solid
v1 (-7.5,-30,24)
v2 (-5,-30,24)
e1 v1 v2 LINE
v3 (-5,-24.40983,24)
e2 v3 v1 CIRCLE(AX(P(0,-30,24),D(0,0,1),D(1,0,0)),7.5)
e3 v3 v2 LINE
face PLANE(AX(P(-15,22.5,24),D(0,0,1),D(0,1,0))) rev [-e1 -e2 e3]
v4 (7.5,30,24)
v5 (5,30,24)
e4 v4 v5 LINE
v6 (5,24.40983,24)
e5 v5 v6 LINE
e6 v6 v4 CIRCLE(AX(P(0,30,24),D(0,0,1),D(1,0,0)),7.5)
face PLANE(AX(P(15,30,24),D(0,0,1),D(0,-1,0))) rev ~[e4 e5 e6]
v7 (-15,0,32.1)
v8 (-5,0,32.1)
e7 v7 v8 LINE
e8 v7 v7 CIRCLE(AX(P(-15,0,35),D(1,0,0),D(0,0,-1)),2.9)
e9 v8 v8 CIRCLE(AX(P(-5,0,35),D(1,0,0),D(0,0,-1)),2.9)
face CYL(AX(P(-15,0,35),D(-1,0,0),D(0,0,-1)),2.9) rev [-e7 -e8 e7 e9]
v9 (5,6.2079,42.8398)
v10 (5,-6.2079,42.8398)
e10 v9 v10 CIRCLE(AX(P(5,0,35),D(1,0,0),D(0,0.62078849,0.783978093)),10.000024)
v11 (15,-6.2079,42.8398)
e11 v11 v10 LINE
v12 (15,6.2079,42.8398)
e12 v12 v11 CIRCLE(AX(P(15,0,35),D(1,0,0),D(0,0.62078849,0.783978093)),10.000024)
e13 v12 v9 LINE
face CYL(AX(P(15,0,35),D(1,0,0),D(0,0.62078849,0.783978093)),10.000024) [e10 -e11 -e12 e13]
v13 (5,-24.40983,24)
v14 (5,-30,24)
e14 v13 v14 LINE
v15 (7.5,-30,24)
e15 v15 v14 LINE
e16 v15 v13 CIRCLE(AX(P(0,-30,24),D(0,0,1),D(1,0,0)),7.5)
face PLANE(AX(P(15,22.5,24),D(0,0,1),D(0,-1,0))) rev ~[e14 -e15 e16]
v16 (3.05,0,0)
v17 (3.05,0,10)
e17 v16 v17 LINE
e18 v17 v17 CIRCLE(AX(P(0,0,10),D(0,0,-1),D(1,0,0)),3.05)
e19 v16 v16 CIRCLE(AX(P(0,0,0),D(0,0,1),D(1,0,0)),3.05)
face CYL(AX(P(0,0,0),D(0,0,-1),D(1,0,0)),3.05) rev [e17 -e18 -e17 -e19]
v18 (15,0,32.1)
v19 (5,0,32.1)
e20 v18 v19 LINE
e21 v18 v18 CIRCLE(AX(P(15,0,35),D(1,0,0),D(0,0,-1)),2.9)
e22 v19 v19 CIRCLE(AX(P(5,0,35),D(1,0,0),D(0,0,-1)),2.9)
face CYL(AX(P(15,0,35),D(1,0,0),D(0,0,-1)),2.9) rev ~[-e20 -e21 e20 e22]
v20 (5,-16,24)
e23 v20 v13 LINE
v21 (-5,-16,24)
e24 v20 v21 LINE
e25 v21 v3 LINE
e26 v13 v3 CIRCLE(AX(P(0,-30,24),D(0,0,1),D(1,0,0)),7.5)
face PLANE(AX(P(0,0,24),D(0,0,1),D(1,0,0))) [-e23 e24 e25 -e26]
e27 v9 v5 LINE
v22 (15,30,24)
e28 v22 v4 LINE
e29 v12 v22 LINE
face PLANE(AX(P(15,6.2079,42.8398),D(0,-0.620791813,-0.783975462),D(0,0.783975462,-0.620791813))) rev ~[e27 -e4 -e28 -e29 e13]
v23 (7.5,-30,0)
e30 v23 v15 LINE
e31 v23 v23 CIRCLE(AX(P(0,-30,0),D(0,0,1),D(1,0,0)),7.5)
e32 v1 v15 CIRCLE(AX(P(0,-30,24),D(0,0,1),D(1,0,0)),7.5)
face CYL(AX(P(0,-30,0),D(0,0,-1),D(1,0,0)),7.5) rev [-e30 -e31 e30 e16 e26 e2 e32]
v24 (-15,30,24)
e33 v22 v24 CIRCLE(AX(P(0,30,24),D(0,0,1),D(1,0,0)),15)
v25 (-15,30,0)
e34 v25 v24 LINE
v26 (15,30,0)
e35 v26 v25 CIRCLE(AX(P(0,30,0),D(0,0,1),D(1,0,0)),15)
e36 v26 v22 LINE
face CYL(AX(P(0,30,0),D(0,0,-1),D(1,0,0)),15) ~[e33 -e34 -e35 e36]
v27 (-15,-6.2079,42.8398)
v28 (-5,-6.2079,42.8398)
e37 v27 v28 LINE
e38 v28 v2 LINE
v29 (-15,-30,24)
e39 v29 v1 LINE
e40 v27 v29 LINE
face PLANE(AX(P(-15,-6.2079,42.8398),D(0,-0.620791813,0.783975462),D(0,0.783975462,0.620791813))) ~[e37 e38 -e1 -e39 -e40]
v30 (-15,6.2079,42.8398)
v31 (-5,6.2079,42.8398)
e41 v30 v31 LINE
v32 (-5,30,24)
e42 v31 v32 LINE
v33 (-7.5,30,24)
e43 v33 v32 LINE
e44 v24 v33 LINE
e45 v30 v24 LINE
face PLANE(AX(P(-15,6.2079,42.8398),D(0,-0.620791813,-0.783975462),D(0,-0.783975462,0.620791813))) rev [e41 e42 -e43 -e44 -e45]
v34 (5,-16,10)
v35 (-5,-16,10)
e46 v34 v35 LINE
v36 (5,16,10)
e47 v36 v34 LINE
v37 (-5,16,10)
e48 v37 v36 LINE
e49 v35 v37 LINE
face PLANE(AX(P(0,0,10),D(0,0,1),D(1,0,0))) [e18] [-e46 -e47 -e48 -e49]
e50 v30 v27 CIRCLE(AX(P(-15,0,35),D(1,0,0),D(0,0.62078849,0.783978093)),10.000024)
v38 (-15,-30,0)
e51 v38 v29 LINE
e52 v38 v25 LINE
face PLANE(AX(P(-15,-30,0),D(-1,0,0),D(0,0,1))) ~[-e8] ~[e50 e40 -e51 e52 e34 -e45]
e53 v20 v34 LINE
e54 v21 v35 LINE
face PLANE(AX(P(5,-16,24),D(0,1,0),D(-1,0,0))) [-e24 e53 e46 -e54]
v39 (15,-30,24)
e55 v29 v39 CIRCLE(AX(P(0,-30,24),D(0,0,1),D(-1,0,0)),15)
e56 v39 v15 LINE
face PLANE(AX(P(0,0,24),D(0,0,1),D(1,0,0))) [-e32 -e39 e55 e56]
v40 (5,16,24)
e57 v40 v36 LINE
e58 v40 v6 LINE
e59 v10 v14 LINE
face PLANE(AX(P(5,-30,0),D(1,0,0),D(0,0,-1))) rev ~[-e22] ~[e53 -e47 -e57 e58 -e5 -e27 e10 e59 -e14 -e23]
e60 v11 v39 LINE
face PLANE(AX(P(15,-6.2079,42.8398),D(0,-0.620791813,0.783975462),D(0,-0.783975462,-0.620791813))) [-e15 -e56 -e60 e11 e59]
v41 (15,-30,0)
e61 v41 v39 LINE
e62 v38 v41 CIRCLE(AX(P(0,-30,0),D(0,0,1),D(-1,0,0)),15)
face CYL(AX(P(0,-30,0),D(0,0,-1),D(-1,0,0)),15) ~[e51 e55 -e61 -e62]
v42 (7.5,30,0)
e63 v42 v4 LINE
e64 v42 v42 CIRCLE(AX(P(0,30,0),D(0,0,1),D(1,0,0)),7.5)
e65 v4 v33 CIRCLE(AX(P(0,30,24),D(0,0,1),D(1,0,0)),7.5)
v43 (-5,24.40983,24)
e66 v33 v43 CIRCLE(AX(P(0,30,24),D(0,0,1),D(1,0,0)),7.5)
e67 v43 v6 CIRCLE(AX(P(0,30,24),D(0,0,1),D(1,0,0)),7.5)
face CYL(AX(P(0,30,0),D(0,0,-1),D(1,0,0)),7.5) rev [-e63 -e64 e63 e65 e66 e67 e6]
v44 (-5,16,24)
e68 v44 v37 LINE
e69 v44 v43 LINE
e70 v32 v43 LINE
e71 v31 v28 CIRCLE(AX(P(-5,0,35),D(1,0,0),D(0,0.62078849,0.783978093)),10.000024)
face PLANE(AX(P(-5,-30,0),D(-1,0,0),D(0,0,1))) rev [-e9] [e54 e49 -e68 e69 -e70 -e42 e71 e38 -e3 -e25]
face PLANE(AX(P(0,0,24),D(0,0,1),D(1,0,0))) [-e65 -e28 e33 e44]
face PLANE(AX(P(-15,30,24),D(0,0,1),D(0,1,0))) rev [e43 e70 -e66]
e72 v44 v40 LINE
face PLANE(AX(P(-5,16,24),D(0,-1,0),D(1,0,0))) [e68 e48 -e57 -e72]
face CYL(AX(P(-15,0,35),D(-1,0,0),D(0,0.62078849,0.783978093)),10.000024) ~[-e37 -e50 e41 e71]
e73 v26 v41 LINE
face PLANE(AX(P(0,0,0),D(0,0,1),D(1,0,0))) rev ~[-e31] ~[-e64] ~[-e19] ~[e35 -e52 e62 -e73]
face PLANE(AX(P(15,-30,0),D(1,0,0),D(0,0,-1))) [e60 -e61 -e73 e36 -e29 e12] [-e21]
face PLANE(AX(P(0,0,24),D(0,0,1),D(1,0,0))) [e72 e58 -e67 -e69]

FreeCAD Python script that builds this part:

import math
import FreeCAD as App
import Part
import Sketcher
Q = App.Units.Quantity

doc = App.newDocument("Part")
body = doc.addObject("PartDesign::Body", "Body")

sketch1 = body.newObject("Sketcher::SketchObject", "Sketch")
sketch1.AttachmentSupport = (doc.getObject("XY_Plane"), [""])
sketch1.MapMode = "FlatFace"
sketch1.addGeometry(Part.LineSegment(App.Vector(15, -30, 0), App.Vector(15, 30, 0)), False)
sketch1.addGeometry(Part.ArcOfCircle(Part.Circle(App.Vector(0, 30, 0), App.Vector(0, 0, 1), 15), math.radians(0), math.radians(180)), False)
sketch1.addGeometry(Part.LineSegment(App.Vector(-15, 30, 0), App.Vector(-15, -30, 0)), False)
sketch1.addGeometry(Part.ArcOfCircle(Part.Circle(App.Vector(0, -30, 0), App.Vector(0, 0, 1), 15), math.radians(180), math.radians(360)), False)
sketch1.addGeometry(Part.Circle(App.Vector(0, -30, 0), App.Vector(0, 0, 1), 7.5), False)
sketch1.addGeometry(Part.Circle(App.Vector(0, 0, 0), App.Vector(0, 0, 1), 3.05), False)
sketch1.addGeometry(Part.Circle(App.Vector(0, 30, 0), App.Vector(0, 0, 1), 7.5), False)
sketch1.addConstraint(Sketcher.Constraint("Tangent", 0, 2, 1, 1))
sketch1.addConstraint(Sketcher.Constraint("Tangent", 1, 2, 2, 1))
sketch1.addConstraint(Sketcher.Constraint("Tangent", 2, 2, 3, 1))
sketch1.addConstraint(Sketcher.Constraint("Tangent", 3, 2, 0, 1))
sketch1.addConstraint(Sketcher.Constraint("Vertical", 0))
sketch1.addConstraint(Sketcher.Constraint("Vertical", 2))
sketch1.addConstraint(Sketcher.Constraint("Coincident", 5, 3, -1, 1))
sketch1.addConstraint(Sketcher.Constraint("Coincident", 4, 3, 3, 3))
sketch1.addConstraint(Sketcher.Constraint("Coincident", 6, 3, 1, 3))
sketch1.addConstraint(Sketcher.Constraint("Equal", 4, 6))
sketch1.addConstraint(Sketcher.Constraint("Symmetric", 1, 3, 3, 3, -1, 1))
sketch1.addConstraint(Sketcher.Constraint("Diameter", 4, Q("15 mm")))
sketch1.addConstraint(Sketcher.Constraint("Radius", 1, Q("15 mm")))
sketch1.addConstraint(Sketcher.Constraint("Diameter", 5, Q("6.1 mm")))
sketch1.addConstraint(Sketcher.Constraint("DistanceY", -1, 1, 1, 3, Q("30 mm")))
pad1 = body.newObject("PartDesign::Pad", "Pad")
pad1.Profile = sketch1
pad1.Length = 24

sketch2 = body.newObject("Sketcher::SketchObject", "Sketch001")
sketch2.AttachmentSupport = (doc.getObject("XY_Plane"), [""])
sketch2.MapMode = "FlatFace"
sketch2.AttachmentOffset = App.Placement(App.Vector(0, 0, 24), App.Rotation())
sketch2.addGeometry(Part.LineSegment(App.Vector(-5, -16, 0), App.Vector(5, -16, 0)), False)
sketch2.addGeometry(Part.LineSegment(App.Vector(5, -16, 0), App.Vector(5, 16, 0)), False)
sketch2.addGeometry(Part.LineSegment(App.Vector(5, 16, 0), App.Vector(-5, 16, 0)), False)
sketch2.addGeometry(Part.LineSegment(App.Vector(-5, 16, 0), App.Vector(-5, -16, 0)), False)
sketch2.addConstraint(Sketcher.Constraint("Coincident", 0, 2, 1, 1))
sketch2.addConstraint(Sketcher.Constraint("Coincident", 1, 2, 2, 1))
sketch2.addConstraint(Sketcher.Constraint("Coincident", 2, 2, 3, 1))
sketch2.addConstraint(Sketcher.Constraint("Coincident", 3, 2, 0, 1))
sketch2.addConstraint(Sketcher.Constraint("Horizontal", 0))
sketch2.addConstraint(Sketcher.Constraint("Vertical", 1))
sketch2.addConstraint(Sketcher.Constraint("Horizontal", 2))
sketch2.addConstraint(Sketcher.Constraint("Vertical", 3))
sketch2.addConstraint(Sketcher.Constraint("Symmetric", 0, 2, 2, 2, -1, 1))
sketch2.addConstraint(Sketcher.Constraint("DistanceX", 0, 1, 0, 2, Q("10 mm")))
sketch2.addConstraint(Sketcher.Constraint("DistanceY", 1, 1, 1, 2, Q("32 mm")))
pocket1 = body.newObject("PartDesign::Pocket", "Pocket")
pocket1.Profile = sketch2
pocket1.Length = 14

sketch3 = body.newObject("Sketcher::SketchObject", "Sketch002")
sketch3.AttachmentSupport = (doc.getObject("YZ_Plane"), [""])
sketch3.MapMode = "FlatFace"
sketch3.AttachmentOffset = App.Placement(App.Vector(0, 0, 15), App.Rotation())
sketch3.addGeometry(Part.LineSegment(App.Vector(30, 24, 0), App.Vector(6.2079, 42.8398, 0)), False)
sketch3.addGeometry(Part.ArcOfCircle(Part.Circle(App.Vector(0, 35, 0), App.Vector(0, 0, 1), 10.000024), math.radians(51.626263), math.radians(128.373737)), False)
sketch3.addGeometry(Part.LineSegment(App.Vector(-6.2079, 42.8398, 0), App.Vector(-30, 24, 0)), False)
sketch3.addGeometry(Part.LineSegment(App.Vector(-30, 24, 0), App.Vector(30, 24, 0)), False)
sketch3.addGeometry(Part.Circle(App.Vector(0, 35, 0), App.Vector(0, 0, 1), 2.9), False)
sketch3.addConstraint(Sketcher.Constraint("Tangent", 0, 2, 1, 1))
sketch3.addConstraint(Sketcher.Constraint("Tangent", 1, 2, 2, 1))
sketch3.addConstraint(Sketcher.Constraint("Coincident", 2, 2, 3, 1))
sketch3.addConstraint(Sketcher.Constraint("Coincident", 3, 2, 0, 1))
sketch3.addConstraint(Sketcher.Constraint("Horizontal", 3))
sketch3.addConstraint(Sketcher.Constraint("Coincident", 4, 3, 1, 3))
sketch3.addConstraint(Sketcher.Constraint("Symmetric", 0, 2, 1, 2, -2))
sketch3.addConstraint(Sketcher.Constraint("Radius", 1, Q("10 mm")))
sketch3.addConstraint(Sketcher.Constraint("Diameter", 4, Q("5.8 mm")))
sketch3.addConstraint(Sketcher.Constraint("DistanceX", 3, 1, 3, 2, Q("60 mm")))
sketch3.addConstraint(Sketcher.Constraint("DistanceY", -1, 1, 1, 3, Q("35 mm")))
sketch3.addConstraint(Sketcher.Constraint("DistanceY", -1, 1, 2, 2, Q("24 mm")))
pad2 = body.newObject("PartDesign::Pad", "Pad001")
pad2.Profile = sketch3
pad2.Length = 10
pad2.Reversed = True
doc.recompute()

mirrored = body.newObject("PartDesign::Mirrored", "Mirrored")
mirrored.Originals = [pad2]
mirrored.MirrorPlane = (doc.getObject("YZ_Plane"), [""])
body.Tip = mirrored

doc.recompute()
